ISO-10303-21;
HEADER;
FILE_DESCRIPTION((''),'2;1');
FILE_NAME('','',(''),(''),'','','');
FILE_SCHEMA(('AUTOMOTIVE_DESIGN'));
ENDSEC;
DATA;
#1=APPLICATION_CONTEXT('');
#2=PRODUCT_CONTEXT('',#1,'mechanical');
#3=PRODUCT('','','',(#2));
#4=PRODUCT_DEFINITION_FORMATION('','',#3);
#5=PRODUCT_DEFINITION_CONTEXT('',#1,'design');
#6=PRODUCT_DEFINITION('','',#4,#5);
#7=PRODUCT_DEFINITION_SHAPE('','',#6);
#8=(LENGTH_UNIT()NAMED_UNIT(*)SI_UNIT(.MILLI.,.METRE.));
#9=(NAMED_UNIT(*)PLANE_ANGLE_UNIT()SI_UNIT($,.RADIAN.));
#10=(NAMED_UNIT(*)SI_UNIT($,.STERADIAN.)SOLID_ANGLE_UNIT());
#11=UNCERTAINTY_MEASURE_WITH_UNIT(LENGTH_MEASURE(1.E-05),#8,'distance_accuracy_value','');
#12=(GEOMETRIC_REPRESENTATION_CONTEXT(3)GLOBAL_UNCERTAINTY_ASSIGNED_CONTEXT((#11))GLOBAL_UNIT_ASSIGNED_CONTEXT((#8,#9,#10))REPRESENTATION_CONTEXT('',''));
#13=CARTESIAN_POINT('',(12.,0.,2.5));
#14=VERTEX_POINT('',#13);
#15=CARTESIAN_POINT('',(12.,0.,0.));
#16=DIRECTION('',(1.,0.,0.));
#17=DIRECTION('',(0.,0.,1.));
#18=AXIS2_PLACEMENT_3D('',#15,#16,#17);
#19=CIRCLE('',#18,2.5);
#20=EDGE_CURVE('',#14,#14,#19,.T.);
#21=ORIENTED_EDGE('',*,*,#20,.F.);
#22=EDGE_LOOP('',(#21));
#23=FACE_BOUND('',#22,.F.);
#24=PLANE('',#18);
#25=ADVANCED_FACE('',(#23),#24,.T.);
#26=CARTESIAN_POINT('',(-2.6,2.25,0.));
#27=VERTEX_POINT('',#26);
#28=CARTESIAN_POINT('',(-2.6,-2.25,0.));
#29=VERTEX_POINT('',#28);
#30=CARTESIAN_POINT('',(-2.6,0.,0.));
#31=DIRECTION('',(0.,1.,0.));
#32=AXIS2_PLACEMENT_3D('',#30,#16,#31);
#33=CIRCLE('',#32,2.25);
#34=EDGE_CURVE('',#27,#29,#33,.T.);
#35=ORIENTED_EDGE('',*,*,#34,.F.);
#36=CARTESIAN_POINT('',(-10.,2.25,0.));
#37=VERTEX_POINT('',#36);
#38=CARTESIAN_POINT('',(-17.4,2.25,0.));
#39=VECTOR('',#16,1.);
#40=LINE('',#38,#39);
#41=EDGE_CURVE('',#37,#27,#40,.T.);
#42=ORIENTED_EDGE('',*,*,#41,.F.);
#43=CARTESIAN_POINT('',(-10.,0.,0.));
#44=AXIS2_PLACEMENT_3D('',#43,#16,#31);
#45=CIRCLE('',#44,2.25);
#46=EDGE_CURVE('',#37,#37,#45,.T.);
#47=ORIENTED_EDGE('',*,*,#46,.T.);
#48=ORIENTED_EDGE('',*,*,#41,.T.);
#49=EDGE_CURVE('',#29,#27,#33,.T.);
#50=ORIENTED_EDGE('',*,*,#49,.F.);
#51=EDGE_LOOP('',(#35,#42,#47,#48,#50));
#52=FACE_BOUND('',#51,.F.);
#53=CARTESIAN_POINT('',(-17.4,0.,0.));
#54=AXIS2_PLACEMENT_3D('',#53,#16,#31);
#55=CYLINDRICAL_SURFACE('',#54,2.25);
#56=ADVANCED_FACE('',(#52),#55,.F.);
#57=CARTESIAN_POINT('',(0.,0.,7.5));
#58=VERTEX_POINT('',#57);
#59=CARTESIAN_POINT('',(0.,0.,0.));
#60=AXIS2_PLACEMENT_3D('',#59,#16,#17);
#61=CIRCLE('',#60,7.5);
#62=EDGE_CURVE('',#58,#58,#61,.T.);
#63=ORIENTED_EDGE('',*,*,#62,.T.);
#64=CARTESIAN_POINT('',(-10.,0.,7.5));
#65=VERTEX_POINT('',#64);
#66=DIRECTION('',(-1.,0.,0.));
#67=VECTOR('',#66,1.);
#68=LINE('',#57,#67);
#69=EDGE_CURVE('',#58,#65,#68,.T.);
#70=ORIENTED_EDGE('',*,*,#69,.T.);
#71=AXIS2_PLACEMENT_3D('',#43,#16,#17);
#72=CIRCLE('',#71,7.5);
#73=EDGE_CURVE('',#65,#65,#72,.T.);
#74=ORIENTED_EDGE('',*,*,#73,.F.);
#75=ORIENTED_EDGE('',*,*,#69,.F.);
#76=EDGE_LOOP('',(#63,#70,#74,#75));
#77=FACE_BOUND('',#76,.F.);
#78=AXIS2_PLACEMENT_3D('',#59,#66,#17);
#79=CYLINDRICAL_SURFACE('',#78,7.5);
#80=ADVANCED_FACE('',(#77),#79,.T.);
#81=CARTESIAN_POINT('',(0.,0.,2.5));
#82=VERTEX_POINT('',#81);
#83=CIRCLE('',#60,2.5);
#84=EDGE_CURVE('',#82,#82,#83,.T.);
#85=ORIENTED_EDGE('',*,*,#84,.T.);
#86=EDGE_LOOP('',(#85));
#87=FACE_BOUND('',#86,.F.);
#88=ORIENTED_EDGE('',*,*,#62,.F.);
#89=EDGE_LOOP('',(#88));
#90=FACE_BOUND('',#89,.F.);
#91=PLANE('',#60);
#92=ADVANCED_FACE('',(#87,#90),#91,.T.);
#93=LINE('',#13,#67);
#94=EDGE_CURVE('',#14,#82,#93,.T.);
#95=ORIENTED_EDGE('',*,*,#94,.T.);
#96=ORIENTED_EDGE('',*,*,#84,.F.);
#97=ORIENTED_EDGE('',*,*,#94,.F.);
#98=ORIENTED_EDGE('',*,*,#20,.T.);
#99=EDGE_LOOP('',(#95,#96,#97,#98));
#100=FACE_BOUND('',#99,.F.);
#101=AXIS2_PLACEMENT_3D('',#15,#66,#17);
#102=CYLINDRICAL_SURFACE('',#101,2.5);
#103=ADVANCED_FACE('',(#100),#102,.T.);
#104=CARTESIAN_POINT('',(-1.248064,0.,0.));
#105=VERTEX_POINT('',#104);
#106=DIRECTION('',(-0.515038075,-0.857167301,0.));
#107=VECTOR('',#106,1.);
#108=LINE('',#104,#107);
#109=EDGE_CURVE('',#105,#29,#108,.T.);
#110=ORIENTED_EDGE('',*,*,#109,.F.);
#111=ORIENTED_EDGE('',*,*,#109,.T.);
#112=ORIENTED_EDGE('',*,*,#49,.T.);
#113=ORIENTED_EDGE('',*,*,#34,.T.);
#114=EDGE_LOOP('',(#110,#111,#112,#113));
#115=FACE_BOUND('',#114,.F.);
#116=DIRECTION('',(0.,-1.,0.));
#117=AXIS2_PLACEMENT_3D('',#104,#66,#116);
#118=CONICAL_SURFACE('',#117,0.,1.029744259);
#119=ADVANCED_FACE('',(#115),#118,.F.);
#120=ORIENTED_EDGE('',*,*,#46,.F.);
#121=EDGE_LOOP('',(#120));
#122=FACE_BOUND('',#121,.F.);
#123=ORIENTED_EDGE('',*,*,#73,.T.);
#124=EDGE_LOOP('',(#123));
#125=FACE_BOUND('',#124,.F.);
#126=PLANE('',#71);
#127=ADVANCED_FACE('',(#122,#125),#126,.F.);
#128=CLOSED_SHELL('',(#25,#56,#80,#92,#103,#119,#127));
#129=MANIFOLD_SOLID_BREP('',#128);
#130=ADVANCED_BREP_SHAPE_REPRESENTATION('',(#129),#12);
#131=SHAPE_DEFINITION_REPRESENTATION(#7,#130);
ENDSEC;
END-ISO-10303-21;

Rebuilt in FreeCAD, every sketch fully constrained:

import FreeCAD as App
import Part
import Sketcher
from FreeCAD import Vector

doc = App.newDocument("Part")
body = doc.addObject("PartDesign::Body", "Body")

# Sketch on XZ plane
sketch1 = body.newObject("Sketcher::SketchObject", "Sketch")
sketch1.AttachmentSupport = (doc.getObject("XZ_Plane"), [""])
sketch1.MapMode = "FlatFace"
sketch1.addGeometry([
    Part.LineSegment(Vector(0, 7.5, 0), Vector(-10, 7.5, 0)),  # 0
    Part.LineSegment(Vector(-10, 7.5, 0), Vector(-10, 0, 0)),  # 1
    Part.LineSegment(Vector(-10, 0, 0), Vector(12, 0, 0)),  # 2
    Part.LineSegment(Vector(12, 0, 0), Vector(12, 2.5, 0)),  # 3
    Part.LineSegment(Vector(12, 2.5, 0), Vector(0, 2.5, 0)),  # 4
    Part.LineSegment(Vector(0, 2.5, 0), Vector(0, 7.5, 0)),  # 5
], False)
sketch1.addConstraint([
    Sketcher.Constraint("Coincident", 0, 2, 1, 1),
    Sketcher.Constraint("Coincident", 1, 2, 2, 1),
    Sketcher.Constraint("Coincident", 2, 2, 3, 1),
    Sketcher.Constraint("Coincident", 3, 2, 4, 1),
    Sketcher.Constraint("Coincident", 4, 2, 5, 1),
    Sketcher.Constraint("Coincident", 5, 2, 0, 1),
    Sketcher.Constraint("Horizontal", 0),
    Sketcher.Constraint("Vertical", 1),
    Sketcher.Constraint("Horizontal", 2),
    Sketcher.Constraint("Vertical", 3),
    Sketcher.Constraint("Horizontal", 4),
    Sketcher.Constraint("Vertical", 5),
    Sketcher.Constraint("PointOnObject", 1, 2, -1),
    Sketcher.Constraint("PointOnObject", 4, 2, -2),
    Sketcher.Constraint("DistanceX", 0, 2, 0, 1, 10.0),
    Sketcher.Constraint("DistanceX", 2, 1, 2, 2, 22.0),
    Sketcher.Constraint("DistanceY", 5, 1, 5, 2, 5.0),
    Sketcher.Constraint("DistanceY", 1, 2, 1, 1, 7.5),
])
revolution = body.newObject("PartDesign::Revolution", "Revolution")
revolution.Profile = sketch1
revolution.ReferenceAxis = (sketch1, ["H_Axis"])
revolution.Angle = 360

# Sketch on YZ plane
sketch2 = body.newObject("Sketcher::SketchObject", "Sketch001")
sketch2.AttachmentSupport = (doc.getObject("YZ_Plane"), [""])
sketch2.MapMode = "FlatFace"
sketch2.AttachmentOffset = App.Placement(Vector(0, 0, -10), App.Rotation())
sketch2.addGeometry(Part.Circle(Vector(0, 0, 0), Vector(0, 0, 1), 2.25), False)
sketch2.addConstraint([
    Sketcher.Constraint("Coincident", 0, 3, -1, 1),
    Sketcher.Constraint("Diameter", 0, 4.5),
])
doc.recompute()
hole = body.newObject("PartDesign::Hole", "Hole")
hole.Profile = sketch2
hole.ThreadType = "None"
hole.Diameter = 4.5
hole.DepthType = "Dimension"
hole.Depth = 7.4
hole.DrillPoint = "Angled"
hole.DrillPointAngle = 118
hole.Reversed = True

doc.recompute()
